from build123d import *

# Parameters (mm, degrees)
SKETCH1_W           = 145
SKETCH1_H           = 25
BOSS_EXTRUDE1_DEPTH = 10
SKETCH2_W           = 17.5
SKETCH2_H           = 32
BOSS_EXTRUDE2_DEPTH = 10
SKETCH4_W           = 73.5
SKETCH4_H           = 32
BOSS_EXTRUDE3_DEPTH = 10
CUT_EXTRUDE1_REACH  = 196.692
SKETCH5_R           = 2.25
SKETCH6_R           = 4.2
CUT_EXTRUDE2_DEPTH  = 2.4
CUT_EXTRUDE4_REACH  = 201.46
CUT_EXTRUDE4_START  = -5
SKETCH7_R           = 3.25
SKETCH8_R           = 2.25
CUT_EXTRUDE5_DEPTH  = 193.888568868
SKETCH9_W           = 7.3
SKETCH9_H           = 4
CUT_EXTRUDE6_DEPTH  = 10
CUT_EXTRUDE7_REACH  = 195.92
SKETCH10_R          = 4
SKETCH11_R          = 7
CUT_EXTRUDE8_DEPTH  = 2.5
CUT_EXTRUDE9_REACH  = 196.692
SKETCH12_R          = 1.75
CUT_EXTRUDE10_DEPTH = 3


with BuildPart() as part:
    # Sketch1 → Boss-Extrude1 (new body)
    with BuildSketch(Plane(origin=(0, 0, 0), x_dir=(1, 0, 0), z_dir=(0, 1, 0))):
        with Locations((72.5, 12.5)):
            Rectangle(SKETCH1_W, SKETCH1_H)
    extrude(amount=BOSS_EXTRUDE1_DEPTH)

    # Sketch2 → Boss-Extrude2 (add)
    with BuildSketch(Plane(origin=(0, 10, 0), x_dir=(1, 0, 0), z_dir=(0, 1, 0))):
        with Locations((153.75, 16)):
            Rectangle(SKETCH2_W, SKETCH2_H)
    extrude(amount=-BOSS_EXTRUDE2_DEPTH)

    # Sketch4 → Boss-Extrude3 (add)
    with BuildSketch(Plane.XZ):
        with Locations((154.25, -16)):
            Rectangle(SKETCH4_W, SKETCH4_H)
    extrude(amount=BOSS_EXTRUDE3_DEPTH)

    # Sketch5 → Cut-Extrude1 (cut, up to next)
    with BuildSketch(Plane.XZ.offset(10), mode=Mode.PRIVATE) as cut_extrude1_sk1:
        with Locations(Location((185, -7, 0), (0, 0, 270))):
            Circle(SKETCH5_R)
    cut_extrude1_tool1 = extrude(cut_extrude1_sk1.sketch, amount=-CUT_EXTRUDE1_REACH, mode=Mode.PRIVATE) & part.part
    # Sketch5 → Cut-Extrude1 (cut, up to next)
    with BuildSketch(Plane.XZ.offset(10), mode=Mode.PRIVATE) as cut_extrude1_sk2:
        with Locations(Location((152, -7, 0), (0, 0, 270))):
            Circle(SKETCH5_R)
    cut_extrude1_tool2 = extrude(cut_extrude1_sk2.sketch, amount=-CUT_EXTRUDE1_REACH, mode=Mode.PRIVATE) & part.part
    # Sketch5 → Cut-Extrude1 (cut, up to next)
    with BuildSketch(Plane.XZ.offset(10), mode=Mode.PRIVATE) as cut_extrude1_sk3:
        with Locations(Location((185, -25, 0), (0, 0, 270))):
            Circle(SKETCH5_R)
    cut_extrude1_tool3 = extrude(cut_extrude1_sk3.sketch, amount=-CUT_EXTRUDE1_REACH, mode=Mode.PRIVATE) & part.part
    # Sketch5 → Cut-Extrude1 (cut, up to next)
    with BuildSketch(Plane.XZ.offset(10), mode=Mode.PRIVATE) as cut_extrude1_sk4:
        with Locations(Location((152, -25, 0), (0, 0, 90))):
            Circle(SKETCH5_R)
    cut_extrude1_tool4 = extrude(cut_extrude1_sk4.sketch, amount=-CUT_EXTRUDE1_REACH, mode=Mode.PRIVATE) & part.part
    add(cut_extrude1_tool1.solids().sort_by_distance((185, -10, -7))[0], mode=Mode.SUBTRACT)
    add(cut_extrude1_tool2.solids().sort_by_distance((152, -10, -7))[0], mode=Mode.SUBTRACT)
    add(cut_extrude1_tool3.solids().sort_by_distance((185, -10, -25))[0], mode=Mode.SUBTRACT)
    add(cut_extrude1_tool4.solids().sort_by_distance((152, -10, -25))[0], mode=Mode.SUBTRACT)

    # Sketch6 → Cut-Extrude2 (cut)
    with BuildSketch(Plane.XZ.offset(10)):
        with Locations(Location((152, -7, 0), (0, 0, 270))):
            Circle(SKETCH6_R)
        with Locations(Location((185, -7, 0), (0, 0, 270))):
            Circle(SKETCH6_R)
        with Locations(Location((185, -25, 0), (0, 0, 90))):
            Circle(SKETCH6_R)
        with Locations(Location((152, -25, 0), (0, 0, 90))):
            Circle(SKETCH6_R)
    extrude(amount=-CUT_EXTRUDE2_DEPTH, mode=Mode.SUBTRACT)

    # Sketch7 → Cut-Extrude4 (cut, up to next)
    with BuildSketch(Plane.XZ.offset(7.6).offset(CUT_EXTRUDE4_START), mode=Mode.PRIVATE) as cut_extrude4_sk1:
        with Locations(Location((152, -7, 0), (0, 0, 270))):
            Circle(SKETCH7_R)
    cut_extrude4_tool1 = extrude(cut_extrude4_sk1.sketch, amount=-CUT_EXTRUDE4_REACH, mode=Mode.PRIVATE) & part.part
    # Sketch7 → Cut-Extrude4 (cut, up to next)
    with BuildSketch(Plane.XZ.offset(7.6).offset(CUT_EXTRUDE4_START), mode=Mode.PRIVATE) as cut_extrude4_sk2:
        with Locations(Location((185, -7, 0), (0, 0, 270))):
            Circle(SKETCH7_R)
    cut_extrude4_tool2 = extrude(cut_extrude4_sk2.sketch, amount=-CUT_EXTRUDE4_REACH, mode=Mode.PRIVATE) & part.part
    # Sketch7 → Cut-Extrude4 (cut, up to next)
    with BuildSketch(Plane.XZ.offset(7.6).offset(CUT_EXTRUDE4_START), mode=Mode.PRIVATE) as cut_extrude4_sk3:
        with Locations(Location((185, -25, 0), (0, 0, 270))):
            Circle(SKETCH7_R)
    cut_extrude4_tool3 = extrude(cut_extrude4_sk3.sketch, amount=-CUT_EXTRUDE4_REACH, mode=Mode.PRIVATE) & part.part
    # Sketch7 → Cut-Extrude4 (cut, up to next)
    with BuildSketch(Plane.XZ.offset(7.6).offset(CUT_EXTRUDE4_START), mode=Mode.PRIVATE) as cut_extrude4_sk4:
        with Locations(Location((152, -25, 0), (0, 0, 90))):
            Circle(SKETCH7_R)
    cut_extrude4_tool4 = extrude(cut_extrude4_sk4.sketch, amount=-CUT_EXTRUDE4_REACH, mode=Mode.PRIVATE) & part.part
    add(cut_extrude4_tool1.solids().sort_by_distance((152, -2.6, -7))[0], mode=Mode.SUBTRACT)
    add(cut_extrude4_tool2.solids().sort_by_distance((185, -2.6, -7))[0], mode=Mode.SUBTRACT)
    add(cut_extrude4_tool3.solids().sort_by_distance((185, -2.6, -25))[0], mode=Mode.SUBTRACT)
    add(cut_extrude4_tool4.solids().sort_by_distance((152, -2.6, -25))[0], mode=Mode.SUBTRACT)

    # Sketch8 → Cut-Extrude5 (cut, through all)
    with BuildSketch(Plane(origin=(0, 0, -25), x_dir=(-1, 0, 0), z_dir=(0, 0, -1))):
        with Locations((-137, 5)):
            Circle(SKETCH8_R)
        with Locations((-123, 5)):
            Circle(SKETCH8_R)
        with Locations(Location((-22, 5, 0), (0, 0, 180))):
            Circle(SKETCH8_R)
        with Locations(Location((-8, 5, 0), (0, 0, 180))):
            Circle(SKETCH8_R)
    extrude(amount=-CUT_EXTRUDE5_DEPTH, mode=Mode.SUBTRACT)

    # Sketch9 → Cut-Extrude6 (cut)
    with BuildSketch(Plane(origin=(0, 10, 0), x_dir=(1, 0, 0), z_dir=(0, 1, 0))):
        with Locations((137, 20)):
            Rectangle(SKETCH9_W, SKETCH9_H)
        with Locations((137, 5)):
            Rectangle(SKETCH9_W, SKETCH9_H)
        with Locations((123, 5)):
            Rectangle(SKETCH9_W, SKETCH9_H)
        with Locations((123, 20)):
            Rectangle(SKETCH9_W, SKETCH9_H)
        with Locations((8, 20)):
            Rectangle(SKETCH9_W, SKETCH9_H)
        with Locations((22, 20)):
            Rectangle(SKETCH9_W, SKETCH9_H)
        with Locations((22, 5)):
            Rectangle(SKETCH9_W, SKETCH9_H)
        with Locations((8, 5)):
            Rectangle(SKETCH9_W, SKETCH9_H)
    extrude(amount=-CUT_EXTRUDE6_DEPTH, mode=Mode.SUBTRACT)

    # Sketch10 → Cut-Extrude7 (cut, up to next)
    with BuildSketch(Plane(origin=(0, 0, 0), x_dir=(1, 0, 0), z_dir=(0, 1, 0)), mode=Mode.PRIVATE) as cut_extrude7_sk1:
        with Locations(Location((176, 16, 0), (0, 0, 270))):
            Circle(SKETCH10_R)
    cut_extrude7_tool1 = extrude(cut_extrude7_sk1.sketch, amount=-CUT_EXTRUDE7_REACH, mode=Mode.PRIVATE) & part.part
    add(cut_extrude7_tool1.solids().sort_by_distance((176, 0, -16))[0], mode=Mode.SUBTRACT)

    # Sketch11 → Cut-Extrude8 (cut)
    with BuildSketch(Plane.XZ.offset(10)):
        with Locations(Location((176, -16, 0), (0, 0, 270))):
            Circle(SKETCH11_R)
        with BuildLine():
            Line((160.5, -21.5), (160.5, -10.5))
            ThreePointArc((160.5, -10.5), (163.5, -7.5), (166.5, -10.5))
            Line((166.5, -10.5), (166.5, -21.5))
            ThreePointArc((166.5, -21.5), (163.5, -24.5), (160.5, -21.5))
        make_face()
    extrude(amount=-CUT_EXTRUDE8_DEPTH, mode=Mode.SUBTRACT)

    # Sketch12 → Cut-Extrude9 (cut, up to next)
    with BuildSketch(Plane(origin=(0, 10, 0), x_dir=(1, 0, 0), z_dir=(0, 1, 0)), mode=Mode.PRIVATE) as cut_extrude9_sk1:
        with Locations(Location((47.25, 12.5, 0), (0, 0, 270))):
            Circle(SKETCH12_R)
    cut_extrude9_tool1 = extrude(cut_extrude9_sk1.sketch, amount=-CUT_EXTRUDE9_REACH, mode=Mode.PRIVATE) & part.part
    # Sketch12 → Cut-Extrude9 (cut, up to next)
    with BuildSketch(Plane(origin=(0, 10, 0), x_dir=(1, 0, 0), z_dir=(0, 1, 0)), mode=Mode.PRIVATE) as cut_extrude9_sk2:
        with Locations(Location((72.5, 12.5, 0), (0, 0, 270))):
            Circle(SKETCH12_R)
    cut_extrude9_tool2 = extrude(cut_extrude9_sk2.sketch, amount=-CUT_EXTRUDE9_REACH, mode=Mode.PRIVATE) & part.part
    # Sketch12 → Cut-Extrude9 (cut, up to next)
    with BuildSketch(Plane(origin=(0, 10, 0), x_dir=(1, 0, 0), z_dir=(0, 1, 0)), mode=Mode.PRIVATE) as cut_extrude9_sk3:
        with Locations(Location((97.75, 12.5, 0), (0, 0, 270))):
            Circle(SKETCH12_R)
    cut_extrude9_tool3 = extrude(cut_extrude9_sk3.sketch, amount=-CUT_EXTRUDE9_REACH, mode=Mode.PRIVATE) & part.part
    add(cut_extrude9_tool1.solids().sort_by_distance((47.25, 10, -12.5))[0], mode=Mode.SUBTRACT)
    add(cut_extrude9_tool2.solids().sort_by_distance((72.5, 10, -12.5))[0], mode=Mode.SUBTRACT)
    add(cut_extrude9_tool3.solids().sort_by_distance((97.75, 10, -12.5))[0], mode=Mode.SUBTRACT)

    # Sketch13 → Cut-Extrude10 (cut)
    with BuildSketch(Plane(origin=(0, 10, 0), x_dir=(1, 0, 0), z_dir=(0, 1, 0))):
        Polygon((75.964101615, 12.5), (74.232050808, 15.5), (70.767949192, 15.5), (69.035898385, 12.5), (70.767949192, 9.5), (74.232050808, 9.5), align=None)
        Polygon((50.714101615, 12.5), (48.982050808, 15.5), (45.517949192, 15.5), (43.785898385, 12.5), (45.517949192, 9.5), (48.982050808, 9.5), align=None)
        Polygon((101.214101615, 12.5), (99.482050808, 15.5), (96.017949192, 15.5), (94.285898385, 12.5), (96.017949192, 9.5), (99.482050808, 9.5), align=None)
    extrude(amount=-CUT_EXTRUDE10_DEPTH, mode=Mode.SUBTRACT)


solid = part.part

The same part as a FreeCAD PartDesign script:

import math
import FreeCAD as App
import Part
import Sketcher
Q = App.Units.Quantity

doc = App.newDocument("Part")
body = doc.addObject("PartDesign::Body", "Body")

# Sketch on XZ plane
sketch1 = doc.addObject("Sketcher::SketchObject", "Sketch")
body.addObject(sketch1)
sketch1.AttachmentSupport = (doc.XZ_Plane, [""])
sketch1.MapMode = "FlatFace"
sketch1.addGeometry(Part.LineSegment(App.Vector(0, -25, 0), App.Vector(0, 0, 0)), False)
sketch1.addGeometry(Part.LineSegment(App.Vector(0, 0, 0), App.Vector(145, 0, 0)), False)
sketch1.addGeometry(Part.LineSegment(App.Vector(145, 0, 0), App.Vector(145, -25, 0)), False)
sketch1.addGeometry(Part.LineSegment(App.Vector(145, -25, 0), App.Vector(0, -25, 0)), False)
sketch1.addConstraint(Sketcher.Constraint("Coincident", 0, 2, 1, 1))
sketch1.addConstraint(Sketcher.Constraint("Coincident", 1, 2, 2, 1))
sketch1.addConstraint(Sketcher.Constraint("Coincident", 2, 2, 3, 1))
sketch1.addConstraint(Sketcher.Constraint("Coincident", 3, 2, 0, 1))
sketch1.addConstraint(Sketcher.Constraint("Vertical", 0))
sketch1.addConstraint(Sketcher.Constraint("Horizontal", 1))
sketch1.addConstraint(Sketcher.Constraint("Vertical", 2))
sketch1.addConstraint(Sketcher.Constraint("Horizontal", 3))
sketch1.addConstraint(Sketcher.Constraint("Coincident", 0, 2, -1, 1))
sketch1.addConstraint(Sketcher.Constraint("DistanceX", 1, 1, 1, 2, Q("145 mm")))
sketch1.addConstraint(Sketcher.Constraint("DistanceY", 0, 1, 0, 2, Q("25 mm")))
pad1 = doc.addObject("PartDesign::Pad", "Pad")
body.addObject(pad1)
pad1.Profile = sketch1
pad1.Length = 10
pad1.Reversed = True

# Sketch on XZ plane
sketch2 = doc.addObject("Sketcher::SketchObject", "Sketch001")
body.addObject(sketch2)
sketch2.AttachmentSupport = (doc.XZ_Plane, [""])
sketch2.MapMode = "FlatFace"
sketch2.AttachmentOffset = App.Placement(App.Vector(0, 0, -10), App.Rotation())
sketch2.addGeometry(Part.LineSegment(App.Vector(145, -32, 0), App.Vector(145, 0, 0)), False)
sketch2.addGeometry(Part.LineSegment(App.Vector(145, 0, 0), App.Vector(162.5, 0, 0)), False)
sketch2.addGeometry(Part.LineSegment(App.Vector(162.5, 0, 0), App.Vector(162.5, -32, 0)), False)
sketch2.addGeometry(Part.LineSegment(App.Vector(162.5, -32, 0), App.Vector(145, -32, 0)), False)
sketch2.addConstraint(Sketcher.Constraint("Coincident", 0, 2, 1, 1))
sketch2.addConstraint(Sketcher.Constraint("Coincident", 1, 2, 2, 1))
sketch2.addConstraint(Sketcher.Constraint("Coincident", 2, 2, 3, 1))
sketch2.addConstraint(Sketcher.Constraint("Coincident", 3, 2, 0, 1))
sketch2.addConstraint(Sketcher.Constraint("Vertical", 0))
sketch2.addConstraint(Sketcher.Constraint("Horizontal", 1))
sketch2.addConstraint(Sketcher.Constraint("Vertical", 2))
sketch2.addConstraint(Sketcher.Constraint("Horizontal", 3))
sketch2.addConstraint(Sketcher.Constraint("PointOnObject", 0, 2, -1))
sketch2.addConstraint(Sketcher.Constraint("DistanceY", 0, 1, 0, 2, Q("32 mm")))
sketch2.addConstraint(Sketcher.Constraint("DistanceX", 1, 1, 1, 2, Q("17.5 mm")))
sketch2.addConstraint(Sketcher.Constraint("DistanceX", -1, 1, 0, 2, Q("145 mm")))
pad2 = doc.addObject("PartDesign::Pad", "Pad001")
body.addObject(pad2)
pad2.Profile = sketch2
pad2.Length = 10

# Sketch on XZ plane
sketch3 = doc.addObject("Sketcher::SketchObject", "Sketch002")
body.addObject(sketch3)
sketch3.AttachmentSupport = (doc.XZ_Plane, [""])
sketch3.MapMode = "FlatFace"
sketch3.addGeometry(Part.LineSegment(App.Vector(117.5, 0, 0), App.Vector(117.5, -32, 0)), False)
sketch3.addGeometry(Part.LineSegment(App.Vector(117.5, -32, 0), App.Vector(191, -32, 0)), False)
sketch3.addGeometry(Part.LineSegment(App.Vector(191, -32, 0), App.Vector(191, 0, 0)), False)
sketch3.addGeometry(Part.LineSegment(App.Vector(191, 0, 0), App.Vector(117.5, 0, 0)), False)
sketch3.addConstraint(Sketcher.Constraint("Coincident", 0, 2, 1, 1))
sketch3.addConstraint(Sketcher.Constraint("Coincident", 1, 2, 2, 1))
sketch3.addConstraint(Sketcher.Constraint("Coincident", 2, 2, 3, 1))
sketch3.addConstraint(Sketcher.Constraint("Coincident", 3, 2, 0, 1))
sketch3.addConstraint(Sketcher.Constraint("Vertical", 0))
sketch3.addConstraint(Sketcher.Constraint("Horizontal", 1))
sketch3.addConstraint(Sketcher.Constraint("Vertical", 2))
sketch3.addConstraint(Sketcher.Constraint("Horizontal", 3))
sketch3.addConstraint(Sketcher.Constraint("PointOnObject", 2, 2, -1))
sketch3.addConstraint(Sketcher.Constraint("DistanceY", 0, 2, 0, 1, Q("32 mm")))
sketch3.addConstraint(Sketcher.Constraint("DistanceX", 1, 1, 1, 2, Q("73.5 mm")))
sketch3.addConstraint(Sketcher.Constraint("DistanceX", -1, 1, 1, 2, Q("191 mm")))
pad3 = doc.addObject("PartDesign::Pad", "Pad002")
body.addObject(pad3)
pad3.Profile = sketch3
pad3.Length = 10

# Sketch on XZ plane
sketch4 = doc.addObject("Sketcher::SketchObject", "Sketch003")
body.addObject(sketch4)
sketch4.AttachmentSupport = (doc.XZ_Plane, [""])
sketch4.MapMode = "FlatFace"
sketch4.AttachmentOffset = App.Placement(App.Vector(0, 0, 10), App.Rotation())
sketch4.addGeometry(Part.Circle(App.Vector(185, -7, 0), App.Vector(0, 0, 1), 2.25), False)
sketch4.addConstraint(Sketcher.Constraint("Diameter", 0, Q("4.5 mm")))
sketch4.addConstraint(Sketcher.Constraint("DistanceX", -1, 1, 0, 3, Q("185 mm")))
sketch4.addConstraint(Sketcher.Constraint("DistanceY", 0, 3, -1, 1, Q("7 mm")))
pocket1 = doc.addObject("PartDesign::Pocket", "Pocket")
body.addObject(pocket1)
pocket1.Profile = sketch4
pocket1.Type = "UpToFirst"

# Sketch on XZ plane
sketch5 = doc.addObject("Sketcher::SketchObject", "Sketch004")
body.addObject(sketch5)
sketch5.AttachmentSupport = (doc.XZ_Plane, [""])
sketch5.MapMode = "FlatFace"
sketch5.AttachmentOffset = App.Placement(App.Vector(0, 0, 10), App.Rotation())
sketch5.addGeometry(Part.Circle(App.Vector(152, -7, 0), App.Vector(0, 0, 1), 2.25), False)
sketch5.addConstraint(Sketcher.Constraint("Diameter", 0, Q("4.5 mm")))
sketch5.addConstraint(Sketcher.Constraint("DistanceX", -1, 1, 0, 3, Q("152 mm")))
sketch5.addConstraint(Sketcher.Constraint("DistanceY", 0, 3, -1, 1, Q("7 mm")))
pocket2 = doc.addObject("PartDesign::Pocket", "Pocket001")
body.addObject(pocket2)
pocket2.Profile = sketch5
pocket2.Type = "UpToFirst"

# Sketch on XZ plane
sketch6 = doc.addObject("Sketcher::SketchObject", "Sketch005")
body.addObject(sketch6)
sketch6.AttachmentSupport = (doc.XZ_Plane, [""])
sketch6.MapMode = "FlatFace"
sketch6.AttachmentOffset = App.Placement(App.Vector(0, 0, 10), App.Rotation())
sketch6.addGeometry(Part.Circle(App.Vector(185, -25, 0), App.Vector(0, 0, 1), 2.25), False)
sketch6.addConstraint(Sketcher.Constraint("Diameter", 0, Q("4.5 mm")))
sketch6.addConstraint(Sketcher.Constraint("DistanceX", -1, 1, 0, 3, Q("185 mm")))
sketch6.addConstraint(Sketcher.Constraint("DistanceY", 0, 3, -1, 1, Q("25 mm")))
pocket3 = doc.addObject("PartDesign::Pocket", "Pocket002")
body.addObject(pocket3)
pocket3.Profile = sketch6
pocket3.Type = "UpToFirst"

# Sketch on XZ plane
sketch7 = doc.addObject("Sketcher::SketchObject", "Sketch006")
body.addObject(sketch7)
sketch7.AttachmentSupport = (doc.XZ_Plane, [""])
sketch7.MapMode = "FlatFace"
sketch7.AttachmentOffset = App.Placement(App.Vector(0, 0, 10), App.Rotation())
sketch7.addGeometry(Part.Circle(App.Vector(152, -25, 0), App.Vector(0, 0, 1), 2.25), False)
sketch7.addConstraint(Sketcher.Constraint("Diameter", 0, Q("4.5 mm")))
sketch7.addConstraint(Sketcher.Constraint("DistanceX", -1, 1, 0, 3, Q("152 mm")))
sketch7.addConstraint(Sketcher.Constraint("DistanceY", 0, 3, -1, 1, Q("25 mm")))
pocket4 = doc.addObject("PartDesign::Pocket", "Pocket003")
body.addObject(pocket4)
pocket4.Profile = sketch7
pocket4.Type = "UpToFirst"

# Sketch on XZ plane
sketch8 = doc.addObject("Sketcher::SketchObject", "Sketch007")
body.addObject(sketch8)
sketch8.AttachmentSupport = (doc.XZ_Plane, [""])
sketch8.MapMode = "FlatFace"
sketch8.AttachmentOffset = App.Placement(App.Vector(0, 0, 10), App.Rotation())
sketch8.addGeometry(Part.Circle(App.Vector(152, -7, 0), App.Vector(0, 0, 1), 4.2), False)
sketch8.addGeometry(Part.Circle(App.Vector(185, -7, 0), App.Vector(0, 0, 1), 4.2), False)
sketch8.addGeometry(Part.Circle(App.Vector(185, -25, 0), App.Vector(0, 0, 1), 4.2), False)
sketch8.addGeometry(Part.Circle(App.Vector(152, -25, 0), App.Vector(0, 0, 1), 4.2), False)
sketch8.addConstraint(Sketcher.Constraint("Equal", 0, 1))
sketch8.addConstraint(Sketcher.Constraint("Equal", 1, 2))
sketch8.addConstraint(Sketcher.Constraint("Equal", 2, 3))
sketch8.addConstraint(Sketcher.Constraint("Horizontal", 0, 3, 1, 3))
sketch8.addConstraint(Sketcher.Constraint("Horizontal", 2, 3, 3, 3))
sketch8.addConstraint(Sketcher.Constraint("Vertical", 1, 3, 2, 3))
sketch8.addConstraint(Sketcher.Constraint("Vertical", 0, 3, 3, 3))
sketch8.addConstraint(Sketcher.Constraint("Diameter", 0, Q("8.4 mm")))
sketch8.addConstraint(Sketcher.Constraint("DistanceX", -1, 1, 0, 3, Q("152 mm")))
sketch8.addConstraint(Sketcher.Constraint("DistanceY", 0, 3, -1, 1, Q("7 mm")))
sketch8.addConstraint(Sketcher.Constraint("DistanceX", -1, 1, 1, 3, Q("185 mm")))
sketch8.addConstraint(Sketcher.Constraint("DistanceY", 2, 3, -1, 1, Q("25 mm")))
pocket5 = doc.addObject("PartDesign::Pocket", "Pocket004")
body.addObject(pocket5)
pocket5.Profile = sketch8
pocket5.Length = 2.4

# Sketch on XZ plane
sketch9 = doc.addObject("Sketcher::SketchObject", "Sketch008")
body.addObject(sketch9)
sketch9.AttachmentSupport = (doc.XZ_Plane, [""])
sketch9.MapMode = "FlatFace"
sketch9.AttachmentOffset = App.Placement(App.Vector(0, 0, 2.6), App.Rotation())
sketch9.addGeometry(Part.Circle(App.Vector(152, -7, 0), App.Vector(0, 0, 1), 3.25), False)
sketch9.addConstraint(Sketcher.Constraint("Diameter", 0, Q("6.5 mm")))
sketch9.addConstraint(Sketcher.Constraint("DistanceX", -1, 1, 0, 3, Q("152 mm")))
sketch9.addConstraint(Sketcher.Constraint("DistanceY", 0, 3, -1, 1, Q("7 mm")))
pocket6 = doc.addObject("PartDesign::Pocket", "Pocket005")
body.addObject(pocket6)
pocket6.Profile = sketch9
pocket6.Length = 12.6

# Sketch on XZ plane
sketch10 = doc.addObject("Sketcher::SketchObject", "Sketch009")
body.addObject(sketch10)
sketch10.AttachmentSupport = (doc.XZ_Plane, [""])
sketch10.MapMode = "FlatFace"
sketch10.AttachmentOffset = App.Placement(App.Vector(0, 0, 2.6), App.Rotation())
sketch10.addGeometry(Part.Circle(App.Vector(185, -7, 0), App.Vector(0, 0, 1), 3.25), False)
sketch10.addConstraint(Sketcher.Constraint("Diameter", 0, Q("6.5 mm")))
sketch10.addConstraint(Sketcher.Constraint("DistanceX", -1, 1, 0, 3, Q("185 mm")))
sketch10.addConstraint(Sketcher.Constraint("DistanceY", 0, 3, -1, 1, Q("7 mm")))
pocket7 = doc.addObject("PartDesign::Pocket", "Pocket006")
body.addObject(pocket7)
pocket7.Profile = sketch10
pocket7.Length = 2.6

# Sketch on XZ plane
sketch11 = doc.addObject("Sketcher::SketchObject", "Sketch010")
body.addObject(sketch11)
sketch11.AttachmentSupport = (doc.XZ_Plane, [""])
sketch11.MapMode = "FlatFace"
sketch11.AttachmentOffset = App.Placement(App.Vector(0, 0, 2.6), App.Rotation())
sketch11.addGeometry(Part.Circle(App.Vector(185, -25, 0), App.Vector(0, 0, 1), 3.25), False)
sketch11.addConstraint(Sketcher.Constraint("Diameter", 0, Q("6.5 mm")))
sketch11.addConstraint(Sketcher.Constraint("DistanceX", -1, 1, 0, 3, Q("185 mm")))
sketch11.addConstraint(Sketcher.Constraint("DistanceY", 0, 3, -1, 1, Q("25 mm")))
pocket8 = doc.addObject("PartDesign::Pocket", "Pocket007")
body.addObject(pocket8)
pocket8.Profile = sketch11
pocket8.Length = 2.6

# Sketch on XZ plane
sketch12 = doc.addObject("Sketcher::SketchObject", "Sketch011")
body.addObject(sketch12)
sketch12.AttachmentSupport = (doc.XZ_Plane, [""])
sketch12.MapMode = "FlatFace"
sketch12.AttachmentOffset = App.Placement(App.Vector(0, 0, 2.6), App.Rotation())
sketch12.addGeometry(Part.Circle(App.Vector(152, -25, 0), App.Vector(0, 0, 1), 3.25), False)
sketch12.addConstraint(Sketcher.Constraint("Diameter", 0, Q("6.5 mm")))
sketch12.addConstraint(Sketcher.Constraint("DistanceX", -1, 1, 0, 3, Q("152 mm")))
sketch12.addConstraint(Sketcher.Constraint("DistanceY", 0, 3, -1, 1, Q("25 mm")))
pocket9 = doc.addObject("PartDesign::Pocket", "Pocket008")
body.addObject(pocket9)
pocket9.Profile = sketch12
pocket9.Length = 12.6

# Sketch on XY plane
sketch13 = doc.addObject("Sketcher::SketchObject", "Sketch012")
body.addObject(sketch13)
sketch13.AttachmentSupport = (doc.XY_Plane, [""])
sketch13.MapMode = "FlatFace"
sketch13.AttachmentOffset = App.Placement(App.Vector(0, 0, -25), App.Rotation())
sketch13.addGeometry(Part.Circle(App.Vector(137, 5, 0), App.Vector(0, 0, 1), 2.25), False)
sketch13.addGeometry(Part.Circle(App.Vector(123, 5, 0), App.Vector(0, 0, 1), 2.25), False)
sketch13.addGeometry(Part.Circle(App.Vector(22, 5, 0), App.Vector(0, 0, 1), 2.25), False)
sketch13.addGeometry(Part.Circle(App.Vector(8, 5, 0), App.Vector(0, 0, 1), 2.25), False)
sketch13.addConstraint(Sketcher.Constraint("Equal", 0, 1))
sketch13.addConstraint(Sketcher.Constraint("Equal", 1, 2))
sketch13.addConstraint(Sketcher.Constraint("Equal", 2, 3))
sketch13.addConstraint(Sketcher.Constraint("Horizontal", 0, 3, 1, 3))
sketch13.addConstraint(Sketcher.Constraint("Horizontal", 1, 3, 2, 3))
sketch13.addConstraint(Sketcher.Constraint("Horizontal", 2, 3, 3, 3))
sketch13.addConstraint(Sketcher.Constraint("Diameter", 0, Q("4.5 mm")))
sketch13.addConstraint(Sketcher.Constraint("DistanceX", -1, 1, 0, 3, Q("137 mm")))
sketch13.addConstraint(Sketcher.Constraint("DistanceY", -1, 1, 0, 3, Q("5 mm")))
sketch13.addConstraint(Sketcher.Constraint("DistanceX", -1, 1, 1, 3, Q("123 mm")))
sketch13.addConstraint(Sketcher.Constraint("DistanceX", -1, 1, 2, 3, Q("22 mm")))
sketch13.addConstraint(Sketcher.Constraint("DistanceX", -1, 1, 3, 3, Q("8 mm")))
pocket10 = doc.addObject("PartDesign::Pocket", "Pocket009")
body.addObject(pocket10)
pocket10.Profile = sketch13
pocket10.Type = "ThroughAll"
pocket10.Reversed = True

# Sketch on XZ plane
sketch14 = doc.addObject("Sketcher::SketchObject", "Sketch013")
body.addObject(sketch14)
sketch14.AttachmentSupport = (doc.XZ_Plane, [""])
sketch14.MapMode = "FlatFace"
sketch14.AttachmentOffset = App.Placement(App.Vector(0, 0, -10), App.Rotation())
sketch14.addGeometry(Part.LineSegment(App.Vector(133.35, -22, 0), App.Vector(133.35, -18, 0)), False)
sketch14.addGeometry(Part.LineSegment(App.Vector(133.35, -18, 0), App.Vector(140.65, -18, 0)), False)
sketch14.addGeometry(Part.LineSegment(App.Vector(140.65, -18, 0), App.Vector(140.65, -22, 0)), False)
sketch14.addGeometry(Part.LineSegment(App.Vector(140.65, -22, 0), App.Vector(133.35, -22, 0)), False)
sketch14.addGeometry(Part.LineSegment(App.Vector(133.35, -7, 0), App.Vector(133.35, -3, 0)), False)
sketch14.addGeometry(Part.LineSegment(App.Vector(133.35, -3, 0), App.Vector(140.65, -3, 0)), False)
sketch14.addGeometry(Part.LineSegment(App.Vector(140.65, -3, 0), App.Vector(140.65, -7, 0)), False)
sketch14.addGeometry(Part.LineSegment(App.Vector(140.65, -7, 0), App.Vector(133.35, -7, 0)), False)
sketch14.addGeometry(Part.LineSegment(App.Vector(119.35, -7, 0), App.Vector(119.35, -3, 0)), False)
sketch14.addGeometry(Part.LineSegment(App.Vector(119.35, -3, 0), App.Vector(126.65, -3, 0)), False)
sketch14.addGeometry(Part.LineSegment(App.Vector(126.65, -3, 0), App.Vector(126.65, -7, 0)), False)
sketch14.addGeometry(Part.LineSegment(App.Vector(126.65, -7, 0), App.Vector(119.35, -7, 0)), False)
sketch14.addGeometry(Part.LineSegment(App.Vector(119.35, -22, 0), App.Vector(119.35, -18, 0)), False)
sketch14.addGeometry(Part.LineSegment(App.Vector(119.35, -18, 0), App.Vector(126.65, -18, 0)), False)
sketch14.addGeometry(Part.LineSegment(App.Vector(126.65, -18, 0), App.Vector(126.65, -22, 0)), False)
sketch14.addGeometry(Part.LineSegment(App.Vector(126.65, -22, 0), App.Vector(119.35, -22, 0)), False)
sketch14.addGeometry(Part.LineSegment(App.Vector(4.35, -22, 0), App.Vector(4.35, -18, 0)), False)
sketch14.addGeometry(Part.LineSegment(App.Vector(4.35, -18, 0), App.Vector(11.65, -18, 0)), False)
sketch14.addGeometry(Part.LineSegment(App.Vector(11.65, -18, 0), App.Vector(11.65, -22, 0)), False)
sketch14.addGeometry(Part.LineSegment(App.Vector(11.65, -22, 0), App.Vector(4.35, -22, 0)), False)
sketch14.addGeometry(Part.LineSegment(App.Vector(18.35, -22, 0), App.Vector(18.35, -18, 0)), False)
sketch14.addGeometry(Part.LineSegment(App.Vector(18.35, -18, 0), App.Vector(25.65, -18, 0)), False)
sketch14.addGeometry(Part.LineSegment(App.Vector(25.65, -18, 0), App.Vector(25.65, -22, 0)), False)
sketch14.addGeometry(Part.LineSegment(App.Vector(25.65, -22, 0), App.Vector(18.35, -22, 0)), False)
sketch14.addGeometry(Part.LineSegment(App.Vector(18.35, -7, 0), App.Vector(18.35, -3, 0)), False)
sketch14.addGeometry(Part.LineSegment(App.Vector(18.35, -3, 0), App.Vector(25.65, -3, 0)), False)
sketch14.addGeometry(Part.LineSegment(App.Vector(25.65, -3, 0), App.Vector(25.65, -7, 0)), False)
sketch14.addGeometry(Part.LineSegment(App.Vector(25.65, -7, 0), App.Vector(18.35, -7, 0)), False)
sketch14.addGeometry(Part.LineSegment(App.Vector(4.35, -7, 0), App.Vector(4.35, -3, 0)), False)
sketch14.addGeometry(Part.LineSegment(App.Vector(4.35, -3, 0), App.Vector(11.65, -3, 0)), False)
sketch14.addGeometry(Part.LineSegment(App.Vector(11.65, -3, 0), App.Vector(11.65, -7, 0)), False)
sketch14.addGeometry(Part.LineSegment(App.Vector(11.65, -7, 0), App.Vector(4.35, -7, 0)), False)
sketch14.addConstraint(Sketcher.Constraint("Coincident", 0, 2, 1, 1))
sketch14.addConstraint(Sketcher.Constraint("Coincident", 1, 2, 2, 1))
sketch14.addConstraint(Sketcher.Constraint("Coincident", 2, 2, 3, 1))
sketch14.addConstraint(Sketcher.Constraint("Coincident", 3, 2, 0, 1))
sketch14.addConstraint(Sketcher.Constraint("Coincident", 4, 2, 5, 1))
sketch14.addConstraint(Sketcher.Constraint("Coincident", 5, 2, 6, 1))
sketch14.addConstraint(Sketcher.Constraint("Coincident", 6, 2, 7, 1))
sketch14.addConstraint(Sketcher.Constraint("Coincident", 7, 2, 4, 1))
sketch14.addConstraint(Sketcher.Constraint("Coincident", 8, 2, 9, 1))
sketch14.addConstraint(Sketcher.Constraint("Coincident", 9, 2, 10, 1))
sketch14.addConstraint(Sketcher.Constraint("Coincident", 10, 2, 11, 1))
sketch14.addConstraint(Sketcher.Constraint("Coincident", 11, 2, 8, 1))
sketch14.addConstraint(Sketcher.Constraint("Coincident", 12, 2, 13, 1))
sketch14.addConstraint(Sketcher.Constraint("Coincident", 13, 2, 14, 1))
sketch14.addConstraint(Sketcher.Constraint("Coincident", 14, 2, 15, 1))
sketch14.addConstraint(Sketcher.Constraint("Coincident", 15, 2, 12, 1))
sketch14.addConstraint(Sketcher.Constraint("Coincident", 16, 2, 17, 1))
sketch14.addConstraint(Sketcher.Constraint("Coincident", 17, 2, 18, 1))
sketch14.addConstraint(Sketcher.Constraint("Coincident", 18, 2, 19, 1))
sketch14.addConstraint(Sketcher.Constraint("Coincident", 19, 2, 16, 1))
sketch14.addConstraint(Sketcher.Constraint("Coincident", 20, 2, 21, 1))
sketch14.addConstraint(Sketcher.Constraint("Coincident", 21, 2, 22, 1))
sketch14.addConstraint(Sketcher.Constraint("Coincident", 22, 2, 23, 1))
sketch14.addConstraint(Sketcher.Constraint("Coincident", 23, 2, 20, 1))
sketch14.addConstraint(Sketcher.Constraint("Coincident", 24, 2, 25, 1))
sketch14.addConstraint(Sketcher.Constraint("Coincident", 25, 2, 26, 1))
sketch14.addConstraint(Sketcher.Constraint("Coincident", 26, 2, 27, 1))
sketch14.addConstraint(Sketcher.Constraint("Coincident", 27, 2, 24, 1))
sketch14.addConstraint(Sketcher.Constraint("Coincident", 28, 2, 29, 1))
sketch14.addConstraint(Sketcher.Constraint("Coincident", 29, 2, 30, 1))
sketch14.addConstraint(Sketcher.Constraint("Coincident", 30, 2, 31, 1))
sketch14.addConstraint(Sketcher.Constraint("Coincident", 31, 2, 28, 1))
sketch14.addConstraint(Sketcher.Constraint("Vertical", 0))
sketch14.addConstraint(Sketcher.Constraint("Horizontal", 1))
sketch14.addConstraint(Sketcher.Constraint("Vertical", 2))
sketch14.addConstraint(Sketcher.Constraint("Horizontal", 3))
sketch14.addConstraint(Sketcher.Constraint("Vertical", 4))
sketch14.addConstraint(Sketcher.Constraint("Horizontal", 5))
sketch14.addConstraint(Sketcher.Constraint("Vertical", 6))
sketch14.addConstraint(Sketcher.Constraint("Horizontal", 7))
sketch14.addConstraint(Sketcher.Constraint("Vertical", 8))
sketch14.addConstraint(Sketcher.Constraint("Horizontal", 9))
sketch14.addConstraint(Sketcher.Constraint("Vertical", 10))
sketch14.addConstraint(Sketcher.Constraint("Horizontal", 11))
sketch14.addConstraint(Sketcher.Constraint("Vertical", 12))
sketch14.addConstraint(Sketcher.Constraint("Horizontal", 13))
sketch14.addConstraint(Sketcher.Constraint("Vertical", 14))
sketch14.addConstraint(Sketcher.Constraint("Horizontal", 15))
sketch14.addConstraint(Sketcher.Constraint("Vertical", 16))
sketch14.addConstraint(Sketcher.Constraint("Horizontal", 17))
sketch14.addConstraint(Sketcher.Constraint("Vertical", 18))
sketch14.addConstraint(Sketcher.Constraint("Horizontal", 19))
sketch14.addConstraint(Sketcher.Constraint("Vertical", 20))
sketch14.addConstraint(Sketcher.Constraint("Horizontal", 21))
sketch14.addConstraint(Sketcher.Constraint("Vertical", 22))
sketch14.addConstraint(Sketcher.Constraint("Horizontal", 23))
sketch14.addConstraint(Sketcher.Constraint("Vertical", 24))
sketch14.addConstraint(Sketcher.Constraint("Horizontal", 25))
sketch14.addConstraint(Sketcher.Constraint("Vertical", 26))
sketch14.addConstraint(Sketcher.Constraint("Horizontal", 27))
sketch14.addConstraint(Sketcher.Constraint("Vertical", 28))
sketch14.addConstraint(Sketcher.Constraint("Horizontal", 29))
sketch14.addConstraint(Sketcher.Constraint("Vertical", 30))
sketch14.addConstraint(Sketcher.Constraint("Horizontal", 31))
sketch14.addConstraint(Sketcher.Constraint("Horizontal", 5, 2, 8, 2))
sketch14.addConstraint(Sketcher.Constraint("Horizontal", 7, 2, 10, 2))
sketch14.addConstraint(Sketcher.Constraint("Horizontal", 1, 2, 12, 2))
sketch14.addConstraint(Sketcher.Constraint("Horizontal", 3, 2, 14, 2))
sketch14.addConstraint(Sketcher.Constraint("Horizontal", 13, 2, 16, 2))
sketch14.addConstraint(Sketcher.Constraint("Horizontal", 15, 2, 18, 2))
sketch14.addConstraint(Sketcher.Constraint("Horizontal", 17, 2, 20, 2))
sketch14.addConstraint(Sketcher.Constraint("Horizontal", 19, 2, 22, 2))
sketch14.addConstraint(Sketcher.Constraint("Horizontal", 9, 2, 24, 2))
sketch14.addConstraint(Sketcher.Constraint("Horizontal", 11, 2, 26, 2))
sketch14.addConstraint(Sketcher.Constraint("Horizontal", 25, 2, 28, 2))
sketch14.addConstraint(Sketcher.Constraint("Horizontal", 27, 2, 30, 2))
sketch14.addConstraint(Sketcher.Constraint("Vertical", 3, 2, 4, 2))
sketch14.addConstraint(Sketcher.Constraint("Vertical", 2, 2, 5, 2))
sketch14.addConstraint(Sketcher.Constraint("Vertical", 11, 2, 12, 2))
sketch14.addConstraint(Sketcher.Constraint("Vertical", 10, 2, 13, 2))
sketch14.addConstraint(Sketcher.Constraint("Vertical", 23, 2, 24, 2))
sketch14.addConstraint(Sketcher.Constraint("Vertical", 22, 2, 25, 2))
sketch14.addConstraint(Sketcher.Constraint("Vertical", 19, 2, 28, 2))
sketch14.addConstraint(Sketcher.Constraint("Vertical", 18, 2, 29, 2))
sketch14.addConstraint(Sketcher.Constraint("Equal", 7, 9))
sketch14.addConstraint(Sketcher.Constraint("Equal", 15, 17))
sketch14.addConstraint(Sketcher.Constraint("Equal", 19, 21))
sketch14.addConstraint(Sketcher.Constraint("Equal", 2, 4))
sketch14.addConstraint(Sketcher.Constraint("DistanceY", 0, 1, 0, 2, Q("4 mm")))
sketch14.addConstraint(Sketcher.Constraint("DistanceX", 1, 1, 1, 2, Q("7.3 mm")))
sketch14.addConstraint(Sketcher.Constraint("DistanceY", 0, 2, -1, 1, Q("18 mm")))
sketch14.addConstraint(Sketcher.Constraint("DistanceY", 4, 2, -1, 1, Q("3 mm")))
sketch14.addConstraint(Sketcher.Constraint("DistanceX", 8, 2, 4, 2, Q("14 mm")))
sketch14.addConstraint(Sketcher.Constraint("DistanceX", 16, 2, 12, 2, Q("115 mm")))
sketch14.addConstraint(Sketcher.Constraint("DistanceX", 16, 2, 20, 2, Q("14 mm")))
sketch14.addConstraint(Sketcher.Constraint("DistanceX", -1, 1, 0, 2, Q("133.35 mm")))
pocket11 = doc.addObject("PartDesign::Pocket", "Pocket010")
body.addObject(pocket11)
pocket11.Profile = sketch14
pocket11.Length = 10
pocket11.Reversed = True

# Sketch on XZ plane
sketch15 = doc.addObject("Sketcher::SketchObject", "Sketch014")
body.addObject(sketch15)
sketch15.AttachmentSupport = (doc.XZ_Plane, [""])
sketch15.MapMode = "FlatFace"
sketch15.addGeometry(Part.Circle(App.Vector(176, -16, 0), App.Vector(0, 0, 1), 4), False)
sketch15.addConstraint(Sketcher.Constraint("Diameter", 0, Q("8 mm")))
sketch15.addConstraint(Sketcher.Constraint("DistanceX", -1, 1, 0, 3, Q("176 mm")))
sketch15.addConstraint(Sketcher.Constraint("DistanceY", 0, 3, -1, 1, Q("16 mm")))
pocket12 = doc.addObject("PartDesign::Pocket", "Pocket011")
body.addObject(pocket12)
pocket12.Profile = sketch15
pocket12.Type = "UpToFirst"
pocket12.Reversed = True

# Sketch on XZ plane
sketch16 = doc.addObject("Sketcher::SketchObject", "Sketch015")
body.addObject(sketch16)
sketch16.AttachmentSupport = (doc.XZ_Plane, [""])
sketch16.MapMode = "FlatFace"
sketch16.AttachmentOffset = App.Placement(App.Vector(0, 0, 10), App.Rotation())
sketch16.addGeometry(Part.Circle(App.Vector(176, -16, 0), App.Vector(0, 0, 1), 7), False)
sketch16.addGeometry(Part.LineSegment(App.Vector(160.5, -10.5, 0), App.Vector(160.5, -21.5, 0)), False)
sketch16.addGeometry(Part.ArcOfCircle(Part.Circle(App.Vector(163.5, -21.5, 0), App.Vector(0, 0, 1), 3), math.radians(180), math.radians(360)), False)
sketch16.addGeometry(Part.LineSegment(App.Vector(166.5, -21.5, 0), App.Vector(166.5, -10.5, 0)), False)
sketch16.addGeometry(Part.ArcOfCircle(Part.Circle(App.Vector(163.5, -10.5, 0), App.Vector(0, 0, 1), 3), math.radians(0), math.radians(180)), False)
sketch16.addConstraint(Sketcher.Constraint("Tangent", 1, 2, 2, 1))
sketch16.addConstraint(Sketcher.Constraint("Tangent", 2, 2, 3, 1))
sketch16.addConstraint(Sketcher.Constraint("Tangent", 3, 2, 4, 1))
sketch16.addConstraint(Sketcher.Constraint("Tangent", 4, 2, 1, 1))
sketch16.addConstraint(Sketcher.Constraint("Vertical", 1))
sketch16.addConstraint(Sketcher.Constraint("Vertical", 3))
sketch16.addConstraint(Sketcher.Constraint("Diameter", 0, Q("14 mm")))
sketch16.addConstraint(Sketcher.Constraint("Radius", 2, Q("3 mm")))
sketch16.addConstraint(Sketcher.Constraint("DistanceY", 1, 2, 1, 1, Q("11 mm")))
sketch16.addConstraint(Sketcher.Constraint("DistanceX", -1, 1, 0, 3, Q("176 mm")))
sketch16.addConstraint(Sketcher.Constraint("DistanceY", 0, 3, -1, 1, Q("16 mm")))
sketch16.addConstraint(Sketcher.Constraint("DistanceX", -1, 1, 2, 3, Q("163.5 mm")))
sketch16.addConstraint(Sketcher.Constraint("DistanceY", 2, 3, -1, 1, Q("21.5 mm")))
pocket13 = doc.addObject("PartDesign::Pocket", "Pocket012")
body.addObject(pocket13)
pocket13.Profile = sketch16
pocket13.Length = 2.5

# Sketch on XZ plane
sketch17 = doc.addObject("Sketcher::SketchObject", "Sketch016")
body.addObject(sketch17)
sketch17.AttachmentSupport = (doc.XZ_Plane, [""])
sketch17.MapMode = "FlatFace"
sketch17.AttachmentOffset = App.Placement(App.Vector(0, 0, -10), App.Rotation())
sketch17.addGeometry(Part.Circle(App.Vector(47.25, -12.5, 0), App.Vector(0, 0, 1), 1.75), False)
sketch17.addConstraint(Sketcher.Constraint("Diameter", 0, Q("3.5 mm")))
sketch17.addConstraint(Sketcher.Constraint("DistanceY", 0, 3, -1, 1, Q("12.5 mm")))
sketch17.addConstraint(Sketcher.Constraint("DistanceX", -1, 1, 0, 3, Q("47.25 mm")))
pocket14 = doc.addObject("PartDesign::Pocket", "Pocket013")
body.addObject(pocket14)
pocket14.Profile = sketch17
pocket14.Type = "UpToFirst"
pocket14.Reversed = True

# Sketch on XZ plane
sketch18 = doc.addObject("Sketcher::SketchObject", "Sketch017")
body.addObject(sketch18)
sketch18.AttachmentSupport = (doc.XZ_Plane, [""])
sketch18.MapMode = "FlatFace"
sketch18.AttachmentOffset = App.Placement(App.Vector(0, 0, -10), App.Rotation())
sketch18.addGeometry(Part.Circle(App.Vector(72.5, -12.5, 0), App.Vector(0, 0, 1), 1.75), False)
sketch18.addConstraint(Sketcher.Constraint("Diameter", 0, Q("3.5 mm")))
sketch18.addConstraint(Sketcher.Constraint("DistanceX", -1, 1, 0, 3, Q("72.5 mm")))
sketch18.addConstraint(Sketcher.Constraint("DistanceY", 0, 3, -1, 1, Q("12.5 mm")))
pocket15 = doc.addObject("PartDesign::Pocket", "Pocket014")
body.addObject(pocket15)
pocket15.Profile = sketch18
pocket15.Type = "UpToFirst"
pocket15.Reversed = True

# Sketch on XZ plane
sketch19 = doc.addObject("Sketcher::SketchObject", "Sketch018")
body.addObject(sketch19)
sketch19.AttachmentSupport = (doc.XZ_Plane, [""])
sketch19.MapMode = "FlatFace"
sketch19.AttachmentOffset = App.Placement(App.Vector(0, 0, -10), App.Rotation())
sketch19.addGeometry(Part.Circle(App.Vector(97.75, -12.5, 0), App.Vector(0, 0, 1), 1.75), False)
sketch19.addConstraint(Sketcher.Constraint("Diameter", 0, Q("3.5 mm")))
sketch19.addConstraint(Sketcher.Constraint("DistanceY", 0, 3, -1, 1, Q("12.5 mm")))
sketch19.addConstraint(Sketcher.Constraint("DistanceX", -1, 1, 0, 3, Q("97.75 mm")))
pocket16 = doc.addObject("PartDesign::Pocket", "Pocket015")
body.addObject(pocket16)
pocket16.Profile = sketch19
pocket16.Type = "UpToFirst"
pocket16.Reversed = True

# Sketch on XZ plane
sketch20 = doc.addObject("Sketcher::SketchObject", "Sketch019")
body.addObject(sketch20)
sketch20.AttachmentSupport = (doc.XZ_Plane, [""])
sketch20.MapMode = "FlatFace"
sketch20.AttachmentOffset = App.Placement(App.Vector(0, 0, -10), App.Rotation())
sketch20.addGeometry(Part.LineSegment(App.Vector(75.964102, -12.5, 0), App.Vector(74.232051, -15.5, 0)), False)
sketch20.addGeometry(Part.LineSegment(App.Vector(74.232051, -15.5, 0), App.Vector(70.767949, -15.5, 0)), False)
sketch20.addGeometry(Part.LineSegment(App.Vector(70.767949, -15.5, 0), App.Vector(69.035898, -12.5, 0)), False)
sketch20.addGeometry(Part.LineSegment(App.Vector(69.035898, -12.5, 0), App.Vector(70.767949, -9.5, 0)), False)
sketch20.addGeometry(Part.LineSegment(App.Vector(70.767949, -9.5, 0), App.Vector(74.232051, -9.5, 0)), False)
sketch20.addGeometry(Part.LineSegment(App.Vector(74.232051, -9.5, 0), App.Vector(75.964102, -12.5, 0)), False)
sketch20.addGeometry(Part.LineSegment(App.Vector(50.714102, -12.5, 0), App.Vector(48.982051, -15.5, 0)), False)
sketch20.addGeometry(Part.LineSegment(App.Vector(48.982051, -15.5, 0), App.Vector(45.517949, -15.5, 0)), False)
sketch20.addGeometry(Part.LineSegment(App.Vector(45.517949, -15.5, 0), App.Vector(43.785898, -12.5, 0)), False)
sketch20.addGeometry(Part.LineSegment(App.Vector(43.785898, -12.5, 0), App.Vector(45.517949, -9.5, 0)), False)
sketch20.addGeometry(Part.LineSegment(App.Vector(45.517949, -9.5, 0), App.Vector(48.982051, -9.5, 0)), False)
sketch20.addGeometry(Part.LineSegment(App.Vector(48.982051, -9.5, 0), App.Vector(50.714102, -12.5, 0)), False)
sketch20.addGeometry(Part.LineSegment(App.Vector(101.214102, -12.5, 0), App.Vector(99.482051, -15.5, 0)), False)
sketch20.addGeometry(Part.LineSegment(App.Vector(99.482051, -15.5, 0), App.Vector(96.017949, -15.5, 0)), False)
sketch20.addGeometry(Part.LineSegment(App.Vector(96.017949, -15.5, 0), App.Vector(94.285898, -12.5, 0)), False)
sketch20.addGeometry(Part.LineSegment(App.Vector(94.285898, -12.5, 0), App.Vector(96.017949, -9.5, 0)), False)
sketch20.addGeometry(Part.LineSegment(App.Vector(96.017949, -9.5, 0), App.Vector(99.482051, -9.5, 0)), False)
sketch20.addGeometry(Part.LineSegment(App.Vector(99.482051, -9.5, 0), App.Vector(101.214102, -12.5, 0)), False)
sketch20.addConstraint(Sketcher.Constraint("Coincident", 0, 2, 1, 1))
sketch20.addConstraint(Sketcher.Constraint("Coincident", 1, 2, 2, 1))
sketch20.addConstraint(Sketcher.Constraint("Coincident", 2, 2, 3, 1))
sketch20.addConstraint(Sketcher.Constraint("Coincident", 3, 2, 4, 1))
sketch20.addConstraint(Sketcher.Constraint("Coincident", 4, 2, 5, 1))
sketch20.addConstraint(Sketcher.Constraint("Coincident", 5, 2, 0, 1))
sketch20.addConstraint(Sketcher.Constraint("Coincident", 6, 2, 7, 1))
sketch20.addConstraint(Sketcher.Constraint("Coincident", 7, 2, 8, 1))
sketch20.addConstraint(Sketcher.Constraint("Coincident", 8, 2, 9, 1))
sketch20.addConstraint(Sketcher.Constraint("Coincident", 9, 2, 10, 1))
sketch20.addConstraint(Sketcher.Constraint("Coincident", 10, 2, 11, 1))
sketch20.addConstraint(Sketcher.Constraint("Coincident", 11, 2, 6, 1))
sketch20.addConstraint(Sketcher.Constraint("Coincident", 12, 2, 13, 1))
sketch20.addConstraint(Sketcher.Constraint("Coincident", 13, 2, 14, 1))
sketch20.addConstraint(Sketcher.Constraint("Coincident", 14, 2, 15, 1))
sketch20.addConstraint(Sketcher.Constraint("Coincident", 15, 2, 16, 1))
sketch20.addConstraint(Sketcher.Constraint("Coincident", 16, 2, 17, 1))
sketch20.addConstraint(Sketcher.Constraint("Coincident", 17, 2, 12, 1))
sketch20.addConstraint(Sketcher.Constraint("Horizontal", 1))
sketch20.addConstraint(Sketcher.Constraint("Horizontal", 4))
sketch20.addConstraint(Sketcher.Constraint("Horizontal", 7))
sketch20.addConstraint(Sketcher.Constraint("Horizontal", 10))
sketch20.addConstraint(Sketcher.Constraint("Horizontal", 13))
sketch20.addConstraint(Sketcher.Constraint("Horizontal", 16))
sketch20.addConstraint(Sketcher.Constraint("Parallel", 0, 3))
sketch20.addConstraint(Sketcher.Constraint("Parallel", 2, 5))
sketch20.addConstraint(Sketcher.Constraint("Parallel", 3, 6))
sketch20.addConstraint(Sketcher.Constraint("Parallel", 5, 8))
sketch20.addConstraint(Sketcher.Constraint("Parallel", 6, 9))
sketch20.addConstraint(Sketcher.Constraint("Parallel", 8, 11))
sketch20.addConstraint(Sketcher.Constraint("Parallel", 9, 12))
sketch20.addConstraint(Sketcher.Constraint("Parallel", 11, 14))
sketch20.addConstraint(Sketcher.Constraint("Parallel", 12, 15))
sketch20.addConstraint(Sketcher.Constraint("Parallel", 14, 17))
sketch20.addConstraint(Sketcher.Constraint("Horizontal", 2, 2, 5, 2))
sketch20.addConstraint(Sketcher.Constraint("Horizontal", 1, 2, 6, 2))
sketch20.addConstraint(Sketcher.Constraint("Horizontal", 5, 2, 8, 2))
sketch20.addConstraint(Sketcher.Constraint("Horizontal", 4, 2, 9, 2))
sketch20.addConstraint(Sketcher.Constraint("Horizontal", 8, 2, 11, 2))
sketch20.addConstraint(Sketcher.Constraint("Horizontal", 7, 2, 12, 2))
sketch20.addConstraint(Sketcher.Constraint("Horizontal", 11, 2, 14, 2))
sketch20.addConstraint(Sketcher.Constraint("Horizontal", 10, 2, 15, 2))
sketch20.addConstraint(Sketcher.Constraint("Horizontal", 14, 2, 17, 2))
sketch20.addConstraint(Sketcher.Constraint("Vertical", 1, 2, 3, 2))
sketch20.addConstraint(Sketcher.Constraint("Vertical", 0, 2, 4, 2))
sketch20.addConstraint(Sketcher.Constraint("Equal", 4, 7))
sketch20.addConstraint(Sketcher.Constraint("Equal", 10, 13))
sketch20.addConstraint(Sketcher.Constraint("Angle", 0, Q("-120 deg")))
sketch20.addConstraint(Sketcher.Constraint("DistanceY", 1, 2, 2, 2, Q("3 mm")))
sketch20.addConstraint(Sketcher.Constraint("DistanceY", 0, 2, -1, 1, Q("15.5 mm")))
sketch20.addConstraint(Sketcher.Constraint("DistanceX", 6, 2, 0, 2, Q("25.25 mm")))
sketch20.addConstraint(Sketcher.Constraint("DistanceX", 0, 2, 12, 2, Q("25.25 mm")))
sketch20.addConstraint(Sketcher.Constraint("DistanceX", 1, 2, 1, 1, Q("3.464102 mm")))
sketch20.addConstraint(Sketcher.Constraint("DistanceX", -1, 1, 2, 2, Q("69.035898 mm")))
pocket17 = doc.addObject("PartDesign::Pocket", "Pocket016")
body.addObject(pocket17)
pocket17.Profile = sketch20
pocket17.Length = 3
pocket17.Reversed = True

doc.recompute()
